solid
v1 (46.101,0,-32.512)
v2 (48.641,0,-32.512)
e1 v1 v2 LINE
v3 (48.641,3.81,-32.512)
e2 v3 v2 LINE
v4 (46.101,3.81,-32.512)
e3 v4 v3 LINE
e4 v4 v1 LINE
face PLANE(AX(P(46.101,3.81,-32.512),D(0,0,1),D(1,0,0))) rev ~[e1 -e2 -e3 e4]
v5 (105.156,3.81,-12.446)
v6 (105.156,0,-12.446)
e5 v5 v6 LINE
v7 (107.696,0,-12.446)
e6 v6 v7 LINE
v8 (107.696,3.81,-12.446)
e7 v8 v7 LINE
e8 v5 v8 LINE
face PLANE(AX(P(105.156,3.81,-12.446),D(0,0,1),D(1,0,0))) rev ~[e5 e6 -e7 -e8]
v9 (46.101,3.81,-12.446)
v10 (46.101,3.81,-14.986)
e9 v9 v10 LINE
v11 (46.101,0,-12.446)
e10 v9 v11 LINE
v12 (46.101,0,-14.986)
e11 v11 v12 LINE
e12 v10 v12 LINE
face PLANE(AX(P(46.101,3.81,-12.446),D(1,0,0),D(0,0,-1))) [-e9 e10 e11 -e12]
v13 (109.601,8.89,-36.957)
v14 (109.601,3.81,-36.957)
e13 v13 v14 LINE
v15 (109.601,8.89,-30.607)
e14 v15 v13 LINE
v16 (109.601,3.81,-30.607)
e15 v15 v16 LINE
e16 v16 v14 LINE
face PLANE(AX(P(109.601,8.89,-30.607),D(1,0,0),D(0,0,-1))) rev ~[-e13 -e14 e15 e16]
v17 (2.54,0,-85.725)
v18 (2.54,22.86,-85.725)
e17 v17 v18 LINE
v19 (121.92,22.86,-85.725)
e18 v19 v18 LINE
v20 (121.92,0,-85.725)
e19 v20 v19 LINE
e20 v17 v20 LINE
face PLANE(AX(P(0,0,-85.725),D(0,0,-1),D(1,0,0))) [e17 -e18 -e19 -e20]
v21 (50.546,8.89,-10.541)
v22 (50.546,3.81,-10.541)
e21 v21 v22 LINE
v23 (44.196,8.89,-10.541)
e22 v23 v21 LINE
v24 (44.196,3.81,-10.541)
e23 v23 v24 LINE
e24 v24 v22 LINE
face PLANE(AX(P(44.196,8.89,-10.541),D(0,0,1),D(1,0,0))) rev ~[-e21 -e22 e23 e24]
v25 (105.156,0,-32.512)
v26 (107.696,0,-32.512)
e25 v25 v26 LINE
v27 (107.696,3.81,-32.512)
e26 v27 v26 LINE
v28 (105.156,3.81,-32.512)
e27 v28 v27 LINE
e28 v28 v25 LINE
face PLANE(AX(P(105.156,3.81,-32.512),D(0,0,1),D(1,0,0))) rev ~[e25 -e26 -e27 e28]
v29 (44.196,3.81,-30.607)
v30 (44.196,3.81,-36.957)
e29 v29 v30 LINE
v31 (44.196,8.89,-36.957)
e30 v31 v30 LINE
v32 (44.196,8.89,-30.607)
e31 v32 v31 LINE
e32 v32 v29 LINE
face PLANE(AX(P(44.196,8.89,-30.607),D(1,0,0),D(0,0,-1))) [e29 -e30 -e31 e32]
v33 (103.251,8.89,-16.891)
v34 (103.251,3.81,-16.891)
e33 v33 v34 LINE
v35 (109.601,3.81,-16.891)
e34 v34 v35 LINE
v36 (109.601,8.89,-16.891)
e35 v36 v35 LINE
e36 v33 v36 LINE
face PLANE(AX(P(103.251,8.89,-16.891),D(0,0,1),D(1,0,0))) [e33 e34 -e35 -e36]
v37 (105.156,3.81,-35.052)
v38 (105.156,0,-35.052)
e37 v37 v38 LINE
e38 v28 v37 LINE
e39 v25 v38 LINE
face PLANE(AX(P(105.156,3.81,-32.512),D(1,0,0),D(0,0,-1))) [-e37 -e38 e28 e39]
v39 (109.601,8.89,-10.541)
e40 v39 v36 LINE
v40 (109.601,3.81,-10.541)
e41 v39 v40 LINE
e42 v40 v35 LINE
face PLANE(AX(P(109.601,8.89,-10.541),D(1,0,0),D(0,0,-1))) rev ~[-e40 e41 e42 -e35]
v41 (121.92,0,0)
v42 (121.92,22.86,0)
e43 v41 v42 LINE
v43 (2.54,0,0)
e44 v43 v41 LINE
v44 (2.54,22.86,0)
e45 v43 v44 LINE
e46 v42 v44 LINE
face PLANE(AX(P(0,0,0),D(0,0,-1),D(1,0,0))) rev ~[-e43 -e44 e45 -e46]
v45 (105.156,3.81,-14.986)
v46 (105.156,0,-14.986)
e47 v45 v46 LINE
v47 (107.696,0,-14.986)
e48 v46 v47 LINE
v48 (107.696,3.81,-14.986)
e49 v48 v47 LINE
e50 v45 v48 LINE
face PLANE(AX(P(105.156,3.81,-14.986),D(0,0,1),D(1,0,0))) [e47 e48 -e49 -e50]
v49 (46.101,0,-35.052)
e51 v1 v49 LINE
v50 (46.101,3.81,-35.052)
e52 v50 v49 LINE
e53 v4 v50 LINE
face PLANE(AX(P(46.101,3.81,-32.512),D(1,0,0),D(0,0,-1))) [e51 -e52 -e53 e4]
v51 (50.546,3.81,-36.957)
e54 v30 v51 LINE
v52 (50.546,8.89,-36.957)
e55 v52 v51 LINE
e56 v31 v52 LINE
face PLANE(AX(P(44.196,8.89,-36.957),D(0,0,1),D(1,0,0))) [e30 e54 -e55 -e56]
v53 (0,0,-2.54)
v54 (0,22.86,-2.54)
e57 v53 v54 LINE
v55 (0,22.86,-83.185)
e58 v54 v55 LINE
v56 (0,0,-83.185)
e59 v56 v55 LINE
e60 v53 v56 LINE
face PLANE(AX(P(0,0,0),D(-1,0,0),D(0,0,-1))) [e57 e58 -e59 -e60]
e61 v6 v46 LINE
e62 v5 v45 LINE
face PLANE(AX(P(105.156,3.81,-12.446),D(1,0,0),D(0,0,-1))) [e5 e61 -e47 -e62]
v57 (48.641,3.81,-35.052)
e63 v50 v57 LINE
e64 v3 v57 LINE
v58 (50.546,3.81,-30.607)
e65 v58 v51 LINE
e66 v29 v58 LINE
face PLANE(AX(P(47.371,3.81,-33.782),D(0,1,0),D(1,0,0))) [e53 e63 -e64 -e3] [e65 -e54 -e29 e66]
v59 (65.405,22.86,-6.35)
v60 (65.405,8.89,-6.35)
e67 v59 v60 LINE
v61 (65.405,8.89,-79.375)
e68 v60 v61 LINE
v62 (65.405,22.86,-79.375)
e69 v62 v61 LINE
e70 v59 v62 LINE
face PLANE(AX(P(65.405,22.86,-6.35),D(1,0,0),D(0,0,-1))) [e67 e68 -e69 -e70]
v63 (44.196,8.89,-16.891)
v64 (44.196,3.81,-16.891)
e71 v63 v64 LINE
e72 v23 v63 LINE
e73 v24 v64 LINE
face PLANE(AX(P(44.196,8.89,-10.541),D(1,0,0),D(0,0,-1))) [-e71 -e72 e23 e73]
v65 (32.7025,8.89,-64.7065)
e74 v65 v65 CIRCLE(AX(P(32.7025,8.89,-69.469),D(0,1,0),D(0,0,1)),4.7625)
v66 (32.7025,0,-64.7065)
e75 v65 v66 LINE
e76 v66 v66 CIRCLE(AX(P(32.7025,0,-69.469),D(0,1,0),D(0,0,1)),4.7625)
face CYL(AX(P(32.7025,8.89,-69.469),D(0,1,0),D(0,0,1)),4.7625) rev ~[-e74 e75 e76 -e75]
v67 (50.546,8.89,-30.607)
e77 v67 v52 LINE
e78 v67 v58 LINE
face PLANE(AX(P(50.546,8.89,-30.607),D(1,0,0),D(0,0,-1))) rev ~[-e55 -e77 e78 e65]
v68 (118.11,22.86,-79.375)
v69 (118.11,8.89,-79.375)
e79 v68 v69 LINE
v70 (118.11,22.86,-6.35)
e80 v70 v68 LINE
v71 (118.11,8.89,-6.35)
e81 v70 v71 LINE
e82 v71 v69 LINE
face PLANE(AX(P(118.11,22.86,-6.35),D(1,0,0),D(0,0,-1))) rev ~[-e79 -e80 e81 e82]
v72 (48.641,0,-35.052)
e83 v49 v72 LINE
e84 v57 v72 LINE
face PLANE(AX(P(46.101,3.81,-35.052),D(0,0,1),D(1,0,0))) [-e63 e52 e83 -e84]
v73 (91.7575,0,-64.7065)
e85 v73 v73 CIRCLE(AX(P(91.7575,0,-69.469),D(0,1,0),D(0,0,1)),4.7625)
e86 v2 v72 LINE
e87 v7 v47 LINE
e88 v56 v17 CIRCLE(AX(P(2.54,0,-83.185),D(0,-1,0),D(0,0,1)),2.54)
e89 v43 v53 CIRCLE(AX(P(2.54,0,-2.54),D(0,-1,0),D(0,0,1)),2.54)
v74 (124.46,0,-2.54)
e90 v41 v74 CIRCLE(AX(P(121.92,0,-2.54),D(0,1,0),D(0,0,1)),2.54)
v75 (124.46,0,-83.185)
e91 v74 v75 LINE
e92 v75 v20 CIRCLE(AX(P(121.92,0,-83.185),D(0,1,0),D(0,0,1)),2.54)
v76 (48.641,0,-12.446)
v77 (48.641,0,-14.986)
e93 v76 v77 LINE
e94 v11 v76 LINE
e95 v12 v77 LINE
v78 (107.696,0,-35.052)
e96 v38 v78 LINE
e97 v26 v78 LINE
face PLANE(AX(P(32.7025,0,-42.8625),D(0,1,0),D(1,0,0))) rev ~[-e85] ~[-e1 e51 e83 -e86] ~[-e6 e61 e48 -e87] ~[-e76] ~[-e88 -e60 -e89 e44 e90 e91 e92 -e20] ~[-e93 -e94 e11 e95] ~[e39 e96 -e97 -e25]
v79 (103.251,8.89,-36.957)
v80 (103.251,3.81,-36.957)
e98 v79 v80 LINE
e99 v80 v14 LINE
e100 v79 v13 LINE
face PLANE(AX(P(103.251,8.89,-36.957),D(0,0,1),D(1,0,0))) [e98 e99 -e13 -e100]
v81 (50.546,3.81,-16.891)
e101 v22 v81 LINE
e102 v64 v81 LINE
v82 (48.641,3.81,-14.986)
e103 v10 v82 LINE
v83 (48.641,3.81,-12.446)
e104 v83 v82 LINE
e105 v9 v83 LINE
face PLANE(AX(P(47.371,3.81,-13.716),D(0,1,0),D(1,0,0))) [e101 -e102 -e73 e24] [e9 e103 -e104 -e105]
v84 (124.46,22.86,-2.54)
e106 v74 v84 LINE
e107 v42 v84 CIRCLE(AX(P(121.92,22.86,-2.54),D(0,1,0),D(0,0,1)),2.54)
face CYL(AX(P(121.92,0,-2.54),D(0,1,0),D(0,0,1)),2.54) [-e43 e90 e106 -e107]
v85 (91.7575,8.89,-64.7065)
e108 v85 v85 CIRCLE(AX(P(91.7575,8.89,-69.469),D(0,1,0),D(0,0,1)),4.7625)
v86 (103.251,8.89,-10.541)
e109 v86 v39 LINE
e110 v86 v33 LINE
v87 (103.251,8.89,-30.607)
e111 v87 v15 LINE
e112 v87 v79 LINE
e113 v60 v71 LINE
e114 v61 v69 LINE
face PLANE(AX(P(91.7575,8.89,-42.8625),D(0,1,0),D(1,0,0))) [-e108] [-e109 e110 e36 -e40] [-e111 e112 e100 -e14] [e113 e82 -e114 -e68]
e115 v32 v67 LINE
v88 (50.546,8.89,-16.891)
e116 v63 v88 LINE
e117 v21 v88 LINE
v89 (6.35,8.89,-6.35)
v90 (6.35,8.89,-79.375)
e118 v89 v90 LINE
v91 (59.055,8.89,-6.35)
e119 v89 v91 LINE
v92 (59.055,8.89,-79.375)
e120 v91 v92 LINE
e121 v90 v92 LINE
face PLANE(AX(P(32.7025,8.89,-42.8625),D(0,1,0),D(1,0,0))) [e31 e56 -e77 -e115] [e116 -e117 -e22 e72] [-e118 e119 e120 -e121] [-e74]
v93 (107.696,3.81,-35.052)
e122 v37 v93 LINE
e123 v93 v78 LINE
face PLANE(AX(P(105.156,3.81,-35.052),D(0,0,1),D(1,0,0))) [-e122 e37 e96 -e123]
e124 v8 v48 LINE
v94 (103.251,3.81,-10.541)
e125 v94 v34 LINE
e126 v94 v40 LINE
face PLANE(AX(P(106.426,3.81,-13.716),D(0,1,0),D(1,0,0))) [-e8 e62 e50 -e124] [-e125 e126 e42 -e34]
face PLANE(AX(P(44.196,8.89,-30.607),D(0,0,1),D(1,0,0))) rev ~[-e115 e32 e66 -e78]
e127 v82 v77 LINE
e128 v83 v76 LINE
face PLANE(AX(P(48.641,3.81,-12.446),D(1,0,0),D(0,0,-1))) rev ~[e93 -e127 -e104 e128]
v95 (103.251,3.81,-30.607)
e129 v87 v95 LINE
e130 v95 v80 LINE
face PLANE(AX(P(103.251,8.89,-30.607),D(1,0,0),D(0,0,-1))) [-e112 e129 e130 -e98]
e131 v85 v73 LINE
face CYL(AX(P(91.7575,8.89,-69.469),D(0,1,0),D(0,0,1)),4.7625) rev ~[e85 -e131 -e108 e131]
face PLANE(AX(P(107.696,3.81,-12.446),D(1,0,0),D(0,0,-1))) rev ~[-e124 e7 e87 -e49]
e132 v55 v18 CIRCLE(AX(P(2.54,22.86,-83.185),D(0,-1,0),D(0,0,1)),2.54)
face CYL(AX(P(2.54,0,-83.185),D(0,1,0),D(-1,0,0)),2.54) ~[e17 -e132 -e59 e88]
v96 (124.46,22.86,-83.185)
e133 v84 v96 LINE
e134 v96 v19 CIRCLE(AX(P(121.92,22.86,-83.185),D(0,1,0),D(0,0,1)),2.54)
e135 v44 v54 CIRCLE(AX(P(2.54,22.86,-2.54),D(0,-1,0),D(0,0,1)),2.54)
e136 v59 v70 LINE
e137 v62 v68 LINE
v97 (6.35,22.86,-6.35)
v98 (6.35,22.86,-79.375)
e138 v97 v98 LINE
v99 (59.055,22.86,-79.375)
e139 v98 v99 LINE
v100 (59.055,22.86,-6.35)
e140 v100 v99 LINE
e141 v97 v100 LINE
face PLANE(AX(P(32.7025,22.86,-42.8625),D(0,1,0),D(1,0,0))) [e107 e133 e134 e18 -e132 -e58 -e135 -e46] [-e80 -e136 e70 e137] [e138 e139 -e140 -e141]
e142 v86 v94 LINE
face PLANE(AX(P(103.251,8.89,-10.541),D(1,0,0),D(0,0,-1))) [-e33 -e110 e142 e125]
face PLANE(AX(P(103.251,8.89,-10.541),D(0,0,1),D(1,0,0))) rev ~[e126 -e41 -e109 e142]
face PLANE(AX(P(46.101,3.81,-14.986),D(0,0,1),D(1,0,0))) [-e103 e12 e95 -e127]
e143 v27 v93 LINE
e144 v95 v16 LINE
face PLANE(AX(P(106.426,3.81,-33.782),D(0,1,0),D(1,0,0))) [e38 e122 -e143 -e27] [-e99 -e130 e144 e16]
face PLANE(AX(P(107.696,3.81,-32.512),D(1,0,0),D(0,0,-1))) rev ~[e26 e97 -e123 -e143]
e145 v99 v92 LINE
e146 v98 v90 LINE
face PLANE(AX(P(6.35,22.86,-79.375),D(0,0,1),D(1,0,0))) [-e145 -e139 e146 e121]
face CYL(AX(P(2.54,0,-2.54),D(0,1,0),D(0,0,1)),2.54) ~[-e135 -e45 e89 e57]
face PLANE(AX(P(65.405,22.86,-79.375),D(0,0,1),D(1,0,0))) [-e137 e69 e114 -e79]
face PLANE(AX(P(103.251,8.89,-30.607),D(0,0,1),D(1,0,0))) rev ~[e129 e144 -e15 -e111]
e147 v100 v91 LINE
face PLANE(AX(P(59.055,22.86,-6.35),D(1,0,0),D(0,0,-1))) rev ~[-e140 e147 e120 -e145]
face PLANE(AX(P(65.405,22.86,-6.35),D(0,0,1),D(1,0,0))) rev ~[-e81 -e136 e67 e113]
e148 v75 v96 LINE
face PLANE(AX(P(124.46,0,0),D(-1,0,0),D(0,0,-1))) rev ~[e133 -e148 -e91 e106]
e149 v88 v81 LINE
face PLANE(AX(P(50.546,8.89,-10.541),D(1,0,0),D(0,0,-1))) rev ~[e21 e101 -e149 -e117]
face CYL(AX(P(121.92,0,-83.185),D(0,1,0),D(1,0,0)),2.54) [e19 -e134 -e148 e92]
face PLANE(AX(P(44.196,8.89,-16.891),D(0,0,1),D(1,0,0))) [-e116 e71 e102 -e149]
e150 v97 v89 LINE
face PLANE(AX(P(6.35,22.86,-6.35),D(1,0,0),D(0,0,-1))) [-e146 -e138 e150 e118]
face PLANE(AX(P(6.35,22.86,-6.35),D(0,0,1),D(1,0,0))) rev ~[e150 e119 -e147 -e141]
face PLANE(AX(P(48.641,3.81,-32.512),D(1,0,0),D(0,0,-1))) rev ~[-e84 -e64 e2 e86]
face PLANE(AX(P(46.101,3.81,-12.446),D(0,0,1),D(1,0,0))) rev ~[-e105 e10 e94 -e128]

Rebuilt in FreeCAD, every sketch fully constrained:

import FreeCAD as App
import Part
import Sketcher

V = App.Vector
Q = App.Units.Quantity


def edges_at(feature, points):
    """Names of the edges that pass closest to the given points."""
    edges = feature.Shape.Edges
    near = lambda p: min(range(len(edges)), key=lambda i: edges[i].distToShape(Part.Vertex(*p))[0])
    return sorted({f"Edge{near(p) + 1}" for p in points})

doc = App.newDocument("Part")
body = doc.addObject("PartDesign::Body", "Body")

# Sketch on XZ plane
sketch1 = body.newObject("Sketcher::SketchObject", "Sketch")
sketch1.AttachmentSupport = (doc.getObject("XZ_Plane"), [""])
sketch1.MapMode = "FlatFace"
sketch1.addGeometry([
    Part.LineSegment(V(0, -86, 0), V(0, 0, 0)),
    Part.LineSegment(V(0, 0, 0), V(65, 0, 0)),
    Part.LineSegment(V(65, 0, 0), V(65, -86, 0)),
    Part.LineSegment(V(65, -86, 0), V(0, -86, 0)),
], False)
sketch1.addConstraint([
    Sketcher.Constraint("Coincident", 0, 2, 1, 1),
    Sketcher.Constraint("Coincident", 1, 2, 2, 1),
    Sketcher.Constraint("Coincident", 2, 2, 3, 1),
    Sketcher.Constraint("Coincident", 3, 2, 0, 1),
    Sketcher.Constraint("Vertical", 0),
    Sketcher.Constraint("Horizontal", 1),
    Sketcher.Constraint("Vertical", 2),
    Sketcher.Constraint("Horizontal", 3),
    Sketcher.Constraint("Coincident", 0, 2, -1, 1),
    Sketcher.Constraint("DistanceX", 1, 1, 1, 2, Q("2.575 in")),
    Sketcher.Constraint("DistanceY", 0, 1, 0, 2, Q("3.375 in")),
])
pad1 = body.newObject("PartDesign::Pad", "Pad")
pad1.Profile = sketch1
pad1.Length = Q("0.9 in")
pad1.Reversed = True

# Sketch on XZ plane
sketch2 = body.newObject("Sketcher::SketchObject", "Sketch001")
sketch2.AttachmentSupport = (doc.getObject("XZ_Plane"), [""])
sketch2.MapMode = "FlatFace"
sketch2.AttachmentOffset = App.Placement(V(0, 0, -0.9 * 25.4), App.Rotation())
sketch2.addGeometry([
    Part.LineSegment(V(6, -79, 0), V(6, -6, 0)),
    Part.LineSegment(V(6, -6, 0), V(59, -6, 0)),
    Part.LineSegment(V(59, -6, 0), V(59, -79, 0)),
    Part.LineSegment(V(59, -79, 0), V(6, -79, 0)),
], False)
sketch2.addConstraint([
    Sketcher.Constraint("Coincident", 0, 2, 1, 1),
    Sketcher.Constraint("Coincident", 1, 2, 2, 1),
    Sketcher.Constraint("Coincident", 2, 2, 3, 1),
    Sketcher.Constraint("Coincident", 3, 2, 0, 1),
    Sketcher.Constraint("Vertical", 0),
    Sketcher.Constraint("Horizontal", 1),
    Sketcher.Constraint("Vertical", 2),
    Sketcher.Constraint("Horizontal", 3),
    Sketcher.Constraint("DistanceX", 1, 1, 1, 2, Q("2.075 in")),
    Sketcher.Constraint("DistanceY", 0, 1, 0, 2, Q("2.875 in")),
    Sketcher.Constraint("DistanceX", -1, 1, 0, 2, Q("0.25 in")),
    Sketcher.Constraint("DistanceY", 0, 2, -1, 1, Q("0.25 in")),
])
pocket1 = body.newObject("PartDesign::Pocket", "Pocket")
pocket1.Profile = sketch2
pocket1.Length = Q("0.55 in")
pocket1.Reversed = True

# Sketch on XZ plane
sketch3 = body.newObject("Sketcher::SketchObject", "Sketch002")
sketch3.AttachmentSupport = (doc.getObject("XZ_Plane"), [""])
sketch3.MapMode = "FlatFace"
sketch3.AttachmentOffset = App.Placement(V(0, 0, -0.35 * 25.4), App.Rotation())
sketch3.addGeometry([
    Part.LineSegment(V(44, -37, 0), V(44, -31, 0)),  # 0
    Part.LineSegment(V(44, -31, 0), V(51, -31, 0)),  # 1
    Part.LineSegment(V(51, -31, 0), V(51, -37, 0)),  # 2
    Part.LineSegment(V(51, -37, 0), V(44, -37, 0)),  # 3
    Part.LineSegment(V(44, -17, 0), V(44, -11, 0)),  # 4
    Part.LineSegment(V(44, -11, 0), V(51, -11, 0)),  # 5
    Part.LineSegment(V(51, -11, 0), V(51, -17, 0)),  # 6
    Part.LineSegment(V(51, -17, 0), V(44, -17, 0)),  # 7
], False)
sketch3.addConstraint([
    Sketcher.Constraint("Coincident", 0, 2, 1, 1),
    Sketcher.Constraint("Coincident", 1, 2, 2, 1),
    Sketcher.Constraint("Coincident", 2, 2, 3, 1),
    Sketcher.Constraint("Coincident", 3, 2, 0, 1),
    Sketcher.Constraint("Coincident", 4, 2, 5, 1),
    Sketcher.Constraint("Coincident", 5, 2, 6, 1),
    Sketcher.Constraint("Coincident", 6, 2, 7, 1),
    Sketcher.Constraint("Coincident", 7, 2, 4, 1),
    Sketcher.Constraint("Vertical", 0),
    Sketcher.Constraint("Horizontal", 1),
    Sketcher.Constraint("Vertical", 2),
    Sketcher.Constraint("Horizontal", 3),
    Sketcher.Constraint("Vertical", 4),
    Sketcher.Constraint("Horizontal", 5),
    Sketcher.Constraint("Vertical", 6),
    Sketcher.Constraint("Horizontal", 7),
    Sketcher.Constraint("Vertical", 3, 2, 4, 2),
    Sketcher.Constraint("Vertical", 2, 2, 5, 2),
    Sketcher.Constraint("Equal", 7, 0),
    Sketcher.Constraint("Equal", 2, 4),
    Sketcher.Constraint("DistanceX", 1, 1, 1, 2, Q("0.25 in")),
    Sketcher.Constraint("DistanceX", -1, 1, 0, 2, Q("1.74 in")),
    Sketcher.Constraint("DistanceY", 0, 2, 4, 2, Q("0.79 in")),
    Sketcher.Constraint("DistanceY", 0, 2, -1, 1, Q("1.205 in")),
])
pocket2 = body.newObject("PartDesign::Pocket", "Pocket001")
pocket2.Profile = sketch3
pocket2.Length = Q("0.2 in")
pocket2.Reversed = True

# Sketch on XZ plane
sketch4 = body.newObject("Sketcher::SketchObject", "Sketch003")
sketch4.AttachmentSupport = (doc.getObject("XZ_Plane"), [""])
sketch4.MapMode = "FlatFace"
sketch4.AttachmentOffset = App.Placement(V(0, 0, -0.15 * 25.4), App.Rotation())
sketch4.addGeometry([
    Part.LineSegment(V(46.1, -35.1, 0), V(46.1, -32.5, 0)),  # 0
    Part.LineSegment(V(46.1, -32.5, 0), V(48.6, -32.5, 0)),  # 1
    Part.LineSegment(V(48.6, -32.5, 0), V(48.6, -35.1, 0)),  # 2
    Part.LineSegment(V(48.6, -35.1, 0), V(46.1, -35.1, 0)),  # 3
    Part.LineSegment(V(46.1, -15, 0), V(46.1, -12.4, 0)),  # 4
    Part.LineSegment(V(46.1, -12.4, 0), V(48.6, -12.4, 0)),  # 5
    Part.LineSegment(V(48.6, -12.4, 0), V(48.6, -15, 0)),  # 6
    Part.LineSegment(V(48.6, -15, 0), V(46.1, -15, 0)),  # 7
], False)
sketch4.addConstraint([
    Sketcher.Constraint("Coincident", 0, 2, 1, 1),
    Sketcher.Constraint("Coincident", 1, 2, 2, 1),
    Sketcher.Constraint("Coincident", 2, 2, 3, 1),
    Sketcher.Constraint("Coincident", 3, 2, 0, 1),
    Sketcher.Constraint("Coincident", 4, 2, 5, 1),
    Sketcher.Constraint("Coincident", 5, 2, 6, 1),
    Sketcher.Constraint("Coincident", 6, 2, 7, 1),
    Sketcher.Constraint("Coincident", 7, 2, 4, 1),
    Sketcher.Constraint("Vertical", 0),
    Sketcher.Constraint("Horizontal", 1),
    Sketcher.Constraint("Vertical", 2),
    Sketcher.Constraint("Horizontal", 3),
    Sketcher.Constraint("Vertical", 4),
    Sketcher.Constraint("Horizontal", 5),
    Sketcher.Constraint("Vertical", 6),
    Sketcher.Constraint("Horizontal", 7),
    Sketcher.Constraint("Vertical", 3, 2, 4, 2),
    Sketcher.Constraint("Vertical", 2, 2, 5, 2),
    Sketcher.Constraint("Equal", 7, 0),
    Sketcher.Constraint("Equal", 2, 4),
    Sketcher.Constraint("DistanceX", 1, 1, 1, 2, Q("0.1 in")),
    Sketcher.Constraint("DistanceY", 0, 2, -1, 1, Q("1.28 in")),
    Sketcher.Constraint("DistanceY", 4, 2, -1, 1, Q("0.49 in")),
    Sketcher.Constraint("DistanceX", -1, 1, 0, 2, Q("1.815 in")),
])
pocket3 = body.newObject("PartDesign::Pocket", "Pocket002")
pocket3.Profile = sketch4
pocket3.Type = "ThroughAll"
pocket3.Reversed = True

# Sketch on XZ plane
sketch5 = body.newObject("Sketcher::SketchObject", "Sketch004")
sketch5.AttachmentSupport = (doc.getObject("XZ_Plane"), [""])
sketch5.MapMode = "FlatFace"
sketch5.AttachmentOffset = App.Placement(V(0, 0, -0.35 * 25.4), App.Rotation())
sketch5.addGeometry(Part.Circle(V(32.7, -69.5, 0), V(0, 0, 1), 4.8), False)
sketch5.addConstraint([
    Sketcher.Constraint("Diameter", 0, Q("0.375 in")),
    Sketcher.Constraint("DistanceY", 0, 3, -1, 1, Q("2.735 in")),
    Sketcher.Constraint("DistanceX", -1, 1, 0, 3, Q("1.2875 in")),
])
pocket4 = body.newObject("PartDesign::Pocket", "Pocket003")
pocket4.Profile = sketch5
pocket4.Type = "ThroughAll"
pocket4.Reversed = True
doc.recompute()

linearpattern = body.newObject("PartDesign::LinearPattern", "LinearPattern")
linearpattern.Originals = [pad1, pocket1, pocket2, pocket3, pocket4]
linearpattern.Direction = (doc.getObject("X_Axis"), [""])
linearpattern.Mode = "offset"
linearpattern.Offset = Q("2.325 in")
linearpattern.Occurrences = 2
body.Tip = linearpattern
doc.recompute()

fillet = body.newObject("PartDesign::Fillet", "Fillet")
fillet.Base = (linearpattern, edges_at(linearpattern, [
    (0, 11.43, -85.725),
    (0, 11.43, 0),
    (124.46, 11.43, -85.725),
    (124.46, 11.43, 0),
]))
fillet.Radius = Q("0.1 in")

doc.recompute()
